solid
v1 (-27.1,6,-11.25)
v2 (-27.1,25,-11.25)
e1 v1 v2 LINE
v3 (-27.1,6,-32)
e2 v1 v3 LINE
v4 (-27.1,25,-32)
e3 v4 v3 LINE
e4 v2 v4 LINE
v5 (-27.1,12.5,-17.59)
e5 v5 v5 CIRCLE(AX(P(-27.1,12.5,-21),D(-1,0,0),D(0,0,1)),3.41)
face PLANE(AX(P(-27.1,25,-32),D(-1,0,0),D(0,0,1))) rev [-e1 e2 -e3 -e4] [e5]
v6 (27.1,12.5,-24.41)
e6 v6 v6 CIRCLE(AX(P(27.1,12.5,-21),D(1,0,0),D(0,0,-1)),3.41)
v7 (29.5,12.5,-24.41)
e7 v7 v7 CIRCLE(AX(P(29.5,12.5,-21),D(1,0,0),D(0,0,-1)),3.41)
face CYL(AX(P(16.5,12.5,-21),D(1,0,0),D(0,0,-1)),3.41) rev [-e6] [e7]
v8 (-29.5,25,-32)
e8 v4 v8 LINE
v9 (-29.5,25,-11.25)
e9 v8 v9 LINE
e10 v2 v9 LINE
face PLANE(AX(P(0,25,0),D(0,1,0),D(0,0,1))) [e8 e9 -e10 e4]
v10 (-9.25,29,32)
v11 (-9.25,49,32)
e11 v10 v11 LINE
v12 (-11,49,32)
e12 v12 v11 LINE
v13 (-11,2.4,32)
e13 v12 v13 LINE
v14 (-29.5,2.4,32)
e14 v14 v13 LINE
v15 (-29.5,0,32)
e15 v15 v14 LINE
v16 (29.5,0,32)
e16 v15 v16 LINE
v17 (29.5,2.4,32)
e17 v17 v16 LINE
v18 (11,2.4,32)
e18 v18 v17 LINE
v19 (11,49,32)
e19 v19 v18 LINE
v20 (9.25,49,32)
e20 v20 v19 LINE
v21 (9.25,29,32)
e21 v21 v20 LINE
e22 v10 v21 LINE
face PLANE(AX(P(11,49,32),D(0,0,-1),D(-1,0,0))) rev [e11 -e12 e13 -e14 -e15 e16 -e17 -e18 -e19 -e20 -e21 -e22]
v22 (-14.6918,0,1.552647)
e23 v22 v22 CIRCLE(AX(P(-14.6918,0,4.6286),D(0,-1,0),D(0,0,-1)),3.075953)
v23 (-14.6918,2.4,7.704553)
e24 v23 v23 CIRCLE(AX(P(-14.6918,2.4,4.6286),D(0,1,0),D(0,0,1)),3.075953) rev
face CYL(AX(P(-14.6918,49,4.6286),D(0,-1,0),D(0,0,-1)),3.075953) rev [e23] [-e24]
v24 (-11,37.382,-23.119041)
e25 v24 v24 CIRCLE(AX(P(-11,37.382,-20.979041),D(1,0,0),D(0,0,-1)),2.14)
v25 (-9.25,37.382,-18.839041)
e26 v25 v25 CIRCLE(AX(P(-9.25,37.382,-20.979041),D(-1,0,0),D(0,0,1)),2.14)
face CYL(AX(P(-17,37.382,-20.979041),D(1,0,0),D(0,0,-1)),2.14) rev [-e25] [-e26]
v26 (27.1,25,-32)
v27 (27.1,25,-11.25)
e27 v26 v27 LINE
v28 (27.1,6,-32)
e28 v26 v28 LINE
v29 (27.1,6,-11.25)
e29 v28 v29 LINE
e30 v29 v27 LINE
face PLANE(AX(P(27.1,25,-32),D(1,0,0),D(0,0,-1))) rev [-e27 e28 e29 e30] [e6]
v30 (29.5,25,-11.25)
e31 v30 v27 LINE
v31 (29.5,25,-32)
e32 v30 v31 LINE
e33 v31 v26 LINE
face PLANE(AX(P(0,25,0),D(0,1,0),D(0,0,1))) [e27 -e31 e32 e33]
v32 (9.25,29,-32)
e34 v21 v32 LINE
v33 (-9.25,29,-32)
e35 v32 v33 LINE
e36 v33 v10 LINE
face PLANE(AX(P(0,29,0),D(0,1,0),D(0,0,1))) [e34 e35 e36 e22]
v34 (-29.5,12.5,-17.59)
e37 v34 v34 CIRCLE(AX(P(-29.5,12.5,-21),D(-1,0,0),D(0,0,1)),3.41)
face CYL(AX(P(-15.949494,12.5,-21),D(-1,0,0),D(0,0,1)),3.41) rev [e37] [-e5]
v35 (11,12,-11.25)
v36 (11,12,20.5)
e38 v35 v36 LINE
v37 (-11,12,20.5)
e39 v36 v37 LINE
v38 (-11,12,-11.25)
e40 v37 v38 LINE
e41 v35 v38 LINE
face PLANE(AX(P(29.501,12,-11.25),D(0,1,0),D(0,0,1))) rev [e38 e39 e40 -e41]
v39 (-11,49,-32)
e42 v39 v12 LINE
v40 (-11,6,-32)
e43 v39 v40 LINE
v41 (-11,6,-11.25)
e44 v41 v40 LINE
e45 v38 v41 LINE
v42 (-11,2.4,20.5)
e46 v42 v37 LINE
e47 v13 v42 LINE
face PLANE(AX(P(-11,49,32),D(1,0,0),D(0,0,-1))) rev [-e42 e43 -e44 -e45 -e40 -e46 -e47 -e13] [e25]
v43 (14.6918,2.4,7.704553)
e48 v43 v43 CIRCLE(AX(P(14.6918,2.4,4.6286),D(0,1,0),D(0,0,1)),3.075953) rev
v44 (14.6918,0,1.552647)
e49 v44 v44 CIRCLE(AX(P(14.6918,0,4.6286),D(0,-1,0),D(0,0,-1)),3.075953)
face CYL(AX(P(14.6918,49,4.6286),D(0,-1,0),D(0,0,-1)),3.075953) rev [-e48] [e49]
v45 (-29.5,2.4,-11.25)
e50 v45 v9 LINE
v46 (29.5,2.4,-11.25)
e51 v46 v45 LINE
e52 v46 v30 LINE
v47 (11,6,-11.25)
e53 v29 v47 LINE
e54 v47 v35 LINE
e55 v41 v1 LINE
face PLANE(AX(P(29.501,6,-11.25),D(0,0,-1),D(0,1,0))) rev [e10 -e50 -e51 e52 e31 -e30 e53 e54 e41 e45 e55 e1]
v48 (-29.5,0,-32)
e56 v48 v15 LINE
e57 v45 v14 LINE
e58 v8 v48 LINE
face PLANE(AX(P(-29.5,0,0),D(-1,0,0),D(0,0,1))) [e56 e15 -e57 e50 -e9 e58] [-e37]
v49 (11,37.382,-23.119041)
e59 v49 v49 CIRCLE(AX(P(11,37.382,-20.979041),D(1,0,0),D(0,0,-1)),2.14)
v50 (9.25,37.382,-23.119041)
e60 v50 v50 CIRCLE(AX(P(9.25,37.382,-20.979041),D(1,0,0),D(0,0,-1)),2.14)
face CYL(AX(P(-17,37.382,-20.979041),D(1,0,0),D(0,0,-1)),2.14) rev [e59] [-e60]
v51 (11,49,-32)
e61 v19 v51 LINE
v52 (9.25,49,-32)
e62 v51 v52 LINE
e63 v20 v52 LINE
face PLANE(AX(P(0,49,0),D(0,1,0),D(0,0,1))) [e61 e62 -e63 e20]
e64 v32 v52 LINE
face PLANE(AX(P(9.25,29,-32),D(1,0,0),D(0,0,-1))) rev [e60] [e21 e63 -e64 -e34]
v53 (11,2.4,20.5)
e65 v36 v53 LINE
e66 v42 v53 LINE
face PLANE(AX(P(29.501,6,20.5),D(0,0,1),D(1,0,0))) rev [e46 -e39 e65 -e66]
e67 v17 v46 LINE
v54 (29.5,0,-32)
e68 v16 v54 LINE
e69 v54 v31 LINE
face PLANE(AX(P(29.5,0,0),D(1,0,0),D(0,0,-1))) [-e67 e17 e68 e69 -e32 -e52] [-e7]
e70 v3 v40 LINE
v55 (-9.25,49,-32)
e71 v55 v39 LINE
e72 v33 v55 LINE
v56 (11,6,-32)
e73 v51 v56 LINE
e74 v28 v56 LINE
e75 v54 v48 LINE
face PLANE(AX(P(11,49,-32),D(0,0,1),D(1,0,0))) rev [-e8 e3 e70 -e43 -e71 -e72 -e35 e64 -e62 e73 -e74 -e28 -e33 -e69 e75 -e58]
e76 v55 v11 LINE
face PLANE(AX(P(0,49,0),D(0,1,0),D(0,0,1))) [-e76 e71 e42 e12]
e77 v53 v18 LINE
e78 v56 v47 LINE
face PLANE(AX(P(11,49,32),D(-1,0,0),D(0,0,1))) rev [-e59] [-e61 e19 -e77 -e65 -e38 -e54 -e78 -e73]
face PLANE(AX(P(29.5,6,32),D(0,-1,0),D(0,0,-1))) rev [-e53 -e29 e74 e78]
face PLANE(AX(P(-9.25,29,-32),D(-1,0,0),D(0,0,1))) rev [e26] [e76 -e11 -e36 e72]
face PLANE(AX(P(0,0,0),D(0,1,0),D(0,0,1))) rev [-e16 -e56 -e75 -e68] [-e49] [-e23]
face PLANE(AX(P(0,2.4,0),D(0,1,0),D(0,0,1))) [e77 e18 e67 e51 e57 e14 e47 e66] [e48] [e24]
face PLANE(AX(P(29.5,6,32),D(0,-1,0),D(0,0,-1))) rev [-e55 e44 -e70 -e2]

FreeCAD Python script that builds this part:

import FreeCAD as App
import Part
import Sketcher
Q = App.Units.Quantity


def add_polygon(sketch, points):
    """Adds a closed chain of lines whose ends are joined by coincident constraints."""
    first, n = sketch.GeometryCount, len(points)
    for a, b in zip(points, points[1:] + points[:1]):
        sketch.addGeometry(Part.LineSegment(App.Vector(*a, 0), App.Vector(*b, 0)), False)
    for i in range(n):
        sketch.addConstraint(Sketcher.Constraint("Coincident", first + i, 2, first + (i + 1) % n, 1))

doc = App.newDocument("Part")
body = doc.addObject("PartDesign::Body", "Body")

# Sketch on XZ plane
sketch1 = body.newObject("Sketcher::SketchObject", "Sketch")
sketch1.AttachmentSupport = (doc.getObject("XZ_Plane"), [""])
sketch1.MapMode = "FlatFace"
add_polygon(sketch1, [(-11, -32), (-11, 32), (11, 32), (11, -32)])  # lines 0-3
sketch1.addConstraint(Sketcher.Constraint("Vertical", 0))
sketch1.addConstraint(Sketcher.Constraint("Horizontal", 1))
sketch1.addConstraint(Sketcher.Constraint("Vertical", 2))
sketch1.addConstraint(Sketcher.Constraint("Horizontal", 3))
sketch1.addConstraint(Sketcher.Constraint("Symmetric", 0, 2, 2, 2, -1, 1))
sketch1.addConstraint(Sketcher.Constraint("DistanceX", 1, 1, 1, 2, Q("22 mm")))
sketch1.addConstraint(Sketcher.Constraint("DistanceY", 0, 1, 0, 2, Q("64 mm")))
pad1 = body.newObject("PartDesign::Pad", "Pad")
pad1.Profile = sketch1
pad1.Length = 49
pad1.Reversed = True

# Sketch on XZ plane
sketch2 = body.newObject("Sketcher::SketchObject", "Sketch001")
sketch2.AttachmentSupport = (doc.getObject("XZ_Plane"), [""])
sketch2.MapMode = "FlatFace"
sketch2.AttachmentOffset = App.Placement(App.Vector(0, 0, -49), App.Rotation())
add_polygon(sketch2, [(-9, -32), (-9, 32), (9, 32), (9, -32)])  # lines 0-3
sketch2.addConstraint(Sketcher.Constraint("Vertical", 0))
sketch2.addConstraint(Sketcher.Constraint("Horizontal", 1))
sketch2.addConstraint(Sketcher.Constraint("Vertical", 2))
sketch2.addConstraint(Sketcher.Constraint("Horizontal", 3))
sketch2.addConstraint(Sketcher.Constraint("Symmetric", 0, 2, 2, 2, -1, 1))
sketch2.addConstraint(Sketcher.Constraint("DistanceY", 0, 1, 0, 2, Q("64 mm")))
sketch2.addConstraint(Sketcher.Constraint("DistanceX", 1, 1, 1, 2, Q("18.5 mm")))
pocket1 = body.newObject("PartDesign::Pocket", "Pocket")
pocket1.Profile = sketch2
pocket1.Length = 20
pocket1.Reversed = True

# Sketch on YZ plane
sketch3 = body.newObject("Sketcher::SketchObject", "Sketch002")
sketch3.AttachmentSupport = (doc.getObject("YZ_Plane"), [""])
sketch3.MapMode = "FlatFace"
sketch3.AttachmentOffset = App.Placement(App.Vector(0, 0, 11), App.Rotation())
sketch3.addGeometry(Part.Circle(App.Vector(37.4, -21, 0), App.Vector(0, 0, 1), 2.1), False)
sketch3.addConstraint(Sketcher.Constraint("Diameter", 0, Q("4.28 mm")))
sketch3.addConstraint(Sketcher.Constraint("DistanceX", -1, 1, 0, 3, Q("37.382 mm")))
sketch3.addConstraint(Sketcher.Constraint("DistanceY", 0, 3, -1, 1, Q("20.979041 mm")))
pocket2 = body.newObject("PartDesign::Pocket", "Pocket001")
pocket2.Profile = sketch3
pocket2.Length = 28

# Sketch on YZ plane
sketch4 = body.newObject("Sketcher::SketchObject", "Sketch003")
sketch4.AttachmentSupport = (doc.getObject("YZ_Plane"), [""])
sketch4.MapMode = "FlatFace"
sketch4.AttachmentOffset = App.Placement(App.Vector(0, 0, 11), App.Rotation())
add_polygon(sketch4, [(6, 32), (0, 32), (0, -32), (6, -32)])  # lines 0-3
sketch4.addConstraint(Sketcher.Constraint("Horizontal", 0))
sketch4.addConstraint(Sketcher.Constraint("Vertical", 1))
sketch4.addConstraint(Sketcher.Constraint("Horizontal", 2))
sketch4.addConstraint(Sketcher.Constraint("Vertical", 3))
sketch4.addConstraint(Sketcher.Constraint("Symmetric", 0, 2, 1, 2, -1, 1))
sketch4.addConstraint(Sketcher.Constraint("DistanceX", 0, 2, 0, 1, Q("6 mm")))
sketch4.addConstraint(Sketcher.Constraint("DistanceY", 1, 2, 1, 1, Q("64 mm")))
pad2 = body.newObject("PartDesign::Pad", "Pad001")
pad2.Profile = sketch4
pad2.Length = 18.5

# Sketch on XZ plane
sketch5 = body.newObject("Sketcher::SketchObject", "Sketch004")
sketch5.AttachmentSupport = (doc.getObject("XZ_Plane"), [""])
sketch5.MapMode = "FlatFace"
sketch5.AttachmentOffset = App.Placement(App.Vector(0, 0, -6), App.Rotation())
add_polygon(sketch5, [(27.1, -32), (27.1, 32), (29.5, 32), (29.5, -32)])  # lines 0-3
sketch5.addConstraint(Sketcher.Constraint("Vertical", 0))
sketch5.addConstraint(Sketcher.Constraint("Horizontal", 1))
sketch5.addConstraint(Sketcher.Constraint("Vertical", 2))
sketch5.addConstraint(Sketcher.Constraint("Horizontal", 3))
sketch5.addConstraint(Sketcher.Constraint("DistanceY", 0, 1, 0, 2, Q("64 mm")))
sketch5.addConstraint(Sketcher.Constraint("DistanceX", 1, 1, 1, 2, Q("2.4 mm")))
sketch5.addConstraint(Sketcher.Constraint("DistanceY", -1, 1, 0, 2, Q("32 mm")))
sketch5.addConstraint(Sketcher.Constraint("DistanceX", -1, 1, 0, 2, Q("27.1 mm")))
pad3 = body.newObject("PartDesign::Pad", "Pad002")
pad3.Profile = sketch5
pad3.Length = 19
pad3.Reversed = True

# Sketch on YZ plane
sketch6 = body.newObject("Sketcher::SketchObject", "Sketch005")
sketch6.AttachmentSupport = (doc.getObject("YZ_Plane"), [""])
sketch6.MapMode = "FlatFace"
sketch6.AttachmentOffset = App.Placement(App.Vector(0, 0, 29.5), App.Rotation())
sketch6.addGeometry(Part.Circle(App.Vector(12.5, -21, 0), App.Vector(0, 0, 1), 3.4), False)
sketch6.addConstraint(Sketcher.Constraint("Diameter", 0, Q("6.82 mm")))
sketch6.addConstraint(Sketcher.Constraint("DistanceY", 0, 3, -1, 1, Q("21 mm")))
sketch6.addConstraint(Sketcher.Constraint("DistanceX", -1, 1, 0, 3, Q("12.5 mm")))
pocket3 = body.newObject("PartDesign::Pocket", "Pocket002")
pocket3.Profile = sketch6
pocket3.Length = 13

# Sketch on YZ plane
sketch7 = body.newObject("Sketcher::SketchObject", "Sketch006")
sketch7.AttachmentSupport = (doc.getObject("YZ_Plane"), [""])
sketch7.MapMode = "FlatFace"
sketch7.AttachmentOffset = App.Placement(App.Vector(0, 0, -11), App.Rotation())
add_polygon(sketch7, [(6, -32), (0, -32), (0, 32), (6, 32)])  # lines 0-3
sketch7.addConstraint(Sketcher.Constraint("Horizontal", 0))
sketch7.addConstraint(Sketcher.Constraint("Vertical", 1))
sketch7.addConstraint(Sketcher.Constraint("Horizontal", 2))
sketch7.addConstraint(Sketcher.Constraint("Vertical", 3))
sketch7.addConstraint(Sketcher.Constraint("Symmetric", 0, 2, 1, 2, -1, 1))
sketch7.addConstraint(Sketcher.Constraint("DistanceX", 0, 2, 0, 1, Q("6 mm")))
sketch7.addConstraint(Sketcher.Constraint("DistanceY", 1, 1, 1, 2, Q("64 mm")))
pad4 = body.newObject("PartDesign::Pad", "Pad003")
pad4.Profile = sketch7
pad4.Length = 18.5
pad4.Reversed = True

# Sketch on XZ plane
sketch8 = body.newObject("Sketcher::SketchObject", "Sketch007")
sketch8.AttachmentSupport = (doc.getObject("XZ_Plane"), [""])
sketch8.MapMode = "FlatFace"
sketch8.AttachmentOffset = App.Placement(App.Vector(0, 0, -6), App.Rotation())
add_polygon(sketch8, [(-29.5, -32), (-29.5, 32), (-27.1, 32), (-27.1, -32)])  # lines 0-3
sketch8.addConstraint(Sketcher.Constraint("Vertical", 0))
sketch8.addConstraint(Sketcher.Constraint("Horizontal", 1))
sketch8.addConstraint(Sketcher.Constraint("Vertical", 2))
sketch8.addConstraint(Sketcher.Constraint("Horizontal", 3))
sketch8.addConstraint(Sketcher.Constraint("DistanceY", 0, 1, 0, 2, Q("64 mm")))
sketch8.addConstraint(Sketcher.Constraint("DistanceX", 1, 1, 1, 2, Q("2.4 mm")))
sketch8.addConstraint(Sketcher.Constraint("DistanceY", -1, 1, 0, 2, Q("32 mm")))
sketch8.addConstraint(Sketcher.Constraint("DistanceX", 0, 2, -1, 1, Q("29.5 mm")))
pad5 = body.newObject("PartDesign::Pad", "Pad004")
pad5.Profile = sketch8
pad5.Length = 19
pad5.Reversed = True

# Sketch on YZ plane
sketch9 = body.newObject("Sketcher::SketchObject", "Sketch008")
sketch9.AttachmentSupport = (doc.getObject("YZ_Plane"), [""])
sketch9.MapMode = "FlatFace"
sketch9.AttachmentOffset = App.Placement(App.Vector(0, 0, -29.5), App.Rotation())
sketch9.addGeometry(Part.Circle(App.Vector(12.5, -21, 0), App.Vector(0, 0, 1), 3.4), False)
sketch9.addConstraint(Sketcher.Constraint("Diameter", 0, Q("6.82 mm")))
sketch9.addConstraint(Sketcher.Constraint("DistanceY", 0, 3, -1, 1, Q("21 mm")))
sketch9.addConstraint(Sketcher.Constraint("DistanceX", -1, 1, 0, 3, Q("12.5 mm")))
pocket4 = body.newObject("PartDesign::Pocket", "Pocket003")
pocket4.Profile = sketch9
pocket4.Length = 13.550506
pocket4.Reversed = True

# Sketch on XZ plane
sketch10 = body.newObject("Sketcher::SketchObject", "Sketch009")
sketch10.AttachmentSupport = (doc.getObject("XZ_Plane"), [""])
sketch10.MapMode = "FlatFace"
sketch10.addGeometry(Part.Circle(App.Vector(-14.7, 4.6, 0), App.Vector(0, 0, 1), 3.1), False)
sketch10.addGeometry(Part.Circle(App.Vector(14.7, 4.6, 0), App.Vector(0, 0, 1), 3.1), False)
sketch10.addConstraint(Sketcher.Constraint("Equal", 0, 1))
sketch10.addConstraint(Sketcher.Constraint("Symmetric", 0, 3, 1, 3, -2))
sketch10.addConstraint(Sketcher.Constraint("Diameter", 0, Q("6.151906 mm")))
sketch10.addConstraint(Sketcher.Constraint("DistanceX", 0, 3, -1, 1, Q("14.6918 mm")))
sketch10.addConstraint(Sketcher.Constraint("DistanceY", -1, 1, 0, 3, Q("4.6286 mm")))
pocket5 = body.newObject("PartDesign::Pocket", "Pocket004")
pocket5.Profile = sketch10
pocket5.Type = "ThroughAll"

# Sketch on YZ plane
sketch11 = body.newObject("Sketcher::SketchObject", "Sketch010")
sketch11.AttachmentSupport = (doc.getObject("YZ_Plane"), [""])
sketch11.MapMode = "FlatFace"
sketch11.AttachmentOffset = App.Placement(App.Vector(0, 0, -11), App.Rotation())
add_polygon(sketch11, [(12, -11), (6, -11), (6, 20), (12, 20)])  # lines 0-3
sketch11.addConstraint(Sketcher.Constraint("Horizontal", 0))
sketch11.addConstraint(Sketcher.Constraint("Vertical", 1))
sketch11.addConstraint(Sketcher.Constraint("Horizontal", 2))
sketch11.addConstraint(Sketcher.Constraint("Vertical", 3))
sketch11.addConstraint(Sketcher.Constraint("DistanceX", 0, 2, 0, 1, Q("6 mm")))
sketch11.addConstraint(Sketcher.Constraint("DistanceX", -1, 1, 0, 2, Q("6 mm")))
sketch11.addConstraint(Sketcher.Constraint("DistanceY", 1, 1, 1, 2, Q("31.75 mm")))
sketch11.addConstraint(Sketcher.Constraint("DistanceY", -1, 1, 1, 2, Q("20.5 mm")))
pocket6 = body.newObject("PartDesign::Pocket", "Pocket005")
pocket6.Profile = sketch11
pocket6.Type = "UpToFirst"
pocket6.Reversed = True

# Sketch on XZ plane
sketch12 = body.newObject("Sketcher::SketchObject", "Sketch011")
sketch12.AttachmentSupport = (doc.getObject("XZ_Plane"), [""])
sketch12.MapMode = "FlatFace"
sketch12.AttachmentOffset = App.Placement(App.Vector(0, 0, -25), App.Rotation())
add_polygon(sketch12, [(-29.5, -11.2), (-29.5, 32), (-27.1, 32), (-27.1, -11.2)])  # lines 0-3
sketch12.addConstraint(Sketcher.Constraint("Vertical", 0))
sketch12.addConstraint(Sketcher.Constraint("Horizontal", 1))
sketch12.addConstraint(Sketcher.Constraint("Vertical", 2))
sketch12.addConstraint(Sketcher.Constraint("Horizontal", 3))
sketch12.addConstraint(Sketcher.Constraint("DistanceX", 1, 1, 1, 2, Q("2.4 mm")))
sketch12.addConstraint(Sketcher.Constraint("DistanceY", -1, 1, 0, 2, Q("32 mm")))
sketch12.addConstraint(Sketcher.Constraint("DistanceY", 0, 1, 0, 2, Q("43.25 mm")))
sketch12.addConstraint(Sketcher.Constraint("DistanceX", 0, 2, -1, 1, Q("29.5 mm")))
pocket7 = body.newObject("PartDesign::Pocket", "Pocket006")
pocket7.Profile = sketch12
pocket7.Length = 19
pocket7.Reversed = True

# Sketch on XZ plane
sketch13 = body.newObject("Sketcher::SketchObject", "Sketch012")
sketch13.AttachmentSupport = (doc.getObject("XZ_Plane"), [""])
sketch13.MapMode = "FlatFace"
sketch13.AttachmentOffset = App.Placement(App.Vector(0, 0, -25), App.Rotation())
add_polygon(sketch13, [(27.1, -11.2), (27.1, 32), (29.5, 32), (29.5, -11.2)])  # lines 0-3
sketch13.addConstraint(Sketcher.Constraint("Vertical", 0))
sketch13.addConstraint(Sketcher.Constraint("Horizontal", 1))
sketch13.addConstraint(Sketcher.Constraint("Vertical", 2))
sketch13.addConstraint(Sketcher.Constraint("Horizontal", 3))
sketch13.addConstraint(Sketcher.Constraint("DistanceX", 1, 1, 1, 2, Q("2.4 mm")))
sketch13.addConstraint(Sketcher.Constraint("DistanceY", -1, 1, 0, 2, Q("32 mm")))
sketch13.addConstraint(Sketcher.Constraint("DistanceY", 0, 1, 0, 2, Q("43.25 mm")))
sketch13.addConstraint(Sketcher.Constraint("DistanceX", -1, 1, 0, 2, Q("27.1 mm")))
pocket8 = body.newObject("PartDesign::Pocket", "Pocket007")
pocket8.Profile = sketch13
pocket8.Length = 19
pocket8.Reversed = True

# Sketch on XZ plane
sketch14 = body.newObject("Sketcher::SketchObject", "Sketch013")
sketch14.AttachmentSupport = (doc.getObject("XZ_Plane"), [""])
sketch14.MapMode = "FlatFace"
sketch14.AttachmentOffset = App.Placement(App.Vector(0, 0, -6), App.Rotation())
add_polygon(sketch14, [(-29.5, -11.2), (-29.5, 32), (-11, 32), (-11, 20.5), (11, 20.5), (11, 32), (29.5, 32), (29.5, -11.2)])  # lines 0-7
sketch14.addGeometry(Part.Circle(App.Vector(-14.7, 4.6, 0), App.Vector(0, 0, 1), 3.1), False)  # 8
sketch14.addGeometry(Part.Circle(App.Vector(14.7, 4.6, 0), App.Vector(0, 0, 1), 3.1), False)  # 9
sketch14.addConstraint(Sketcher.Constraint("Vertical", 0))
sketch14.addConstraint(Sketcher.Constraint("Horizontal", 1))
sketch14.addConstraint(Sketcher.Constraint("Vertical", 2))
sketch14.addConstraint(Sketcher.Constraint("Horizontal", 3))
sketch14.addConstraint(Sketcher.Constraint("Vertical", 4))
sketch14.addConstraint(Sketcher.Constraint("Horizontal", 5))
sketch14.addConstraint(Sketcher.Constraint("Vertical", 6))
sketch14.addConstraint(Sketcher.Constraint("Horizontal", 7))
sketch14.addConstraint(Sketcher.Constraint("Equal", 8, 9))
sketch14.addConstraint(Sketcher.Constraint("Symmetric", 8, 3, 9, 3, -2))
sketch14.addConstraint(Sketcher.Constraint("Symmetric", 1, 2, 4, 2, -2))
sketch14.addConstraint(Sketcher.Constraint("Equal", 1, 5))
sketch14.addConstraint(Sketcher.Constraint("DistanceX", 3, 1, 3, 2, Q("22 mm")))
sketch14.addConstraint(Sketcher.Constraint("DistanceX", 7, 2, 7, 1, Q("59 mm")))
sketch14.addConstraint(Sketcher.Constraint("DistanceY", 2, 2, 2, 1, Q("11.5 mm")))
sketch14.addConstraint(Sketcher.Constraint("DistanceY", -1, 1, 0, 2, Q("32 mm")))
sketch14.addConstraint(Sketcher.Constraint("DistanceY", 0, 1, 0, 2, Q("43.25 mm")))
sketch14.addConstraint(Sketcher.Constraint("Diameter", 8, Q("6.151906 mm")))
sketch14.addConstraint(Sketcher.Constraint("DistanceX", 8, 3, -1, 1, Q("14.6918 mm")))
sketch14.addConstraint(Sketcher.Constraint("DistanceY", -1, 1, 8, 3, Q("4.6286 mm")))
pocket9 = body.newObject("PartDesign::Pocket", "Pocket008")
pocket9.Profile = sketch14
pocket9.Length = 3.6
pocket9.Reversed = True

doc.recompute()
